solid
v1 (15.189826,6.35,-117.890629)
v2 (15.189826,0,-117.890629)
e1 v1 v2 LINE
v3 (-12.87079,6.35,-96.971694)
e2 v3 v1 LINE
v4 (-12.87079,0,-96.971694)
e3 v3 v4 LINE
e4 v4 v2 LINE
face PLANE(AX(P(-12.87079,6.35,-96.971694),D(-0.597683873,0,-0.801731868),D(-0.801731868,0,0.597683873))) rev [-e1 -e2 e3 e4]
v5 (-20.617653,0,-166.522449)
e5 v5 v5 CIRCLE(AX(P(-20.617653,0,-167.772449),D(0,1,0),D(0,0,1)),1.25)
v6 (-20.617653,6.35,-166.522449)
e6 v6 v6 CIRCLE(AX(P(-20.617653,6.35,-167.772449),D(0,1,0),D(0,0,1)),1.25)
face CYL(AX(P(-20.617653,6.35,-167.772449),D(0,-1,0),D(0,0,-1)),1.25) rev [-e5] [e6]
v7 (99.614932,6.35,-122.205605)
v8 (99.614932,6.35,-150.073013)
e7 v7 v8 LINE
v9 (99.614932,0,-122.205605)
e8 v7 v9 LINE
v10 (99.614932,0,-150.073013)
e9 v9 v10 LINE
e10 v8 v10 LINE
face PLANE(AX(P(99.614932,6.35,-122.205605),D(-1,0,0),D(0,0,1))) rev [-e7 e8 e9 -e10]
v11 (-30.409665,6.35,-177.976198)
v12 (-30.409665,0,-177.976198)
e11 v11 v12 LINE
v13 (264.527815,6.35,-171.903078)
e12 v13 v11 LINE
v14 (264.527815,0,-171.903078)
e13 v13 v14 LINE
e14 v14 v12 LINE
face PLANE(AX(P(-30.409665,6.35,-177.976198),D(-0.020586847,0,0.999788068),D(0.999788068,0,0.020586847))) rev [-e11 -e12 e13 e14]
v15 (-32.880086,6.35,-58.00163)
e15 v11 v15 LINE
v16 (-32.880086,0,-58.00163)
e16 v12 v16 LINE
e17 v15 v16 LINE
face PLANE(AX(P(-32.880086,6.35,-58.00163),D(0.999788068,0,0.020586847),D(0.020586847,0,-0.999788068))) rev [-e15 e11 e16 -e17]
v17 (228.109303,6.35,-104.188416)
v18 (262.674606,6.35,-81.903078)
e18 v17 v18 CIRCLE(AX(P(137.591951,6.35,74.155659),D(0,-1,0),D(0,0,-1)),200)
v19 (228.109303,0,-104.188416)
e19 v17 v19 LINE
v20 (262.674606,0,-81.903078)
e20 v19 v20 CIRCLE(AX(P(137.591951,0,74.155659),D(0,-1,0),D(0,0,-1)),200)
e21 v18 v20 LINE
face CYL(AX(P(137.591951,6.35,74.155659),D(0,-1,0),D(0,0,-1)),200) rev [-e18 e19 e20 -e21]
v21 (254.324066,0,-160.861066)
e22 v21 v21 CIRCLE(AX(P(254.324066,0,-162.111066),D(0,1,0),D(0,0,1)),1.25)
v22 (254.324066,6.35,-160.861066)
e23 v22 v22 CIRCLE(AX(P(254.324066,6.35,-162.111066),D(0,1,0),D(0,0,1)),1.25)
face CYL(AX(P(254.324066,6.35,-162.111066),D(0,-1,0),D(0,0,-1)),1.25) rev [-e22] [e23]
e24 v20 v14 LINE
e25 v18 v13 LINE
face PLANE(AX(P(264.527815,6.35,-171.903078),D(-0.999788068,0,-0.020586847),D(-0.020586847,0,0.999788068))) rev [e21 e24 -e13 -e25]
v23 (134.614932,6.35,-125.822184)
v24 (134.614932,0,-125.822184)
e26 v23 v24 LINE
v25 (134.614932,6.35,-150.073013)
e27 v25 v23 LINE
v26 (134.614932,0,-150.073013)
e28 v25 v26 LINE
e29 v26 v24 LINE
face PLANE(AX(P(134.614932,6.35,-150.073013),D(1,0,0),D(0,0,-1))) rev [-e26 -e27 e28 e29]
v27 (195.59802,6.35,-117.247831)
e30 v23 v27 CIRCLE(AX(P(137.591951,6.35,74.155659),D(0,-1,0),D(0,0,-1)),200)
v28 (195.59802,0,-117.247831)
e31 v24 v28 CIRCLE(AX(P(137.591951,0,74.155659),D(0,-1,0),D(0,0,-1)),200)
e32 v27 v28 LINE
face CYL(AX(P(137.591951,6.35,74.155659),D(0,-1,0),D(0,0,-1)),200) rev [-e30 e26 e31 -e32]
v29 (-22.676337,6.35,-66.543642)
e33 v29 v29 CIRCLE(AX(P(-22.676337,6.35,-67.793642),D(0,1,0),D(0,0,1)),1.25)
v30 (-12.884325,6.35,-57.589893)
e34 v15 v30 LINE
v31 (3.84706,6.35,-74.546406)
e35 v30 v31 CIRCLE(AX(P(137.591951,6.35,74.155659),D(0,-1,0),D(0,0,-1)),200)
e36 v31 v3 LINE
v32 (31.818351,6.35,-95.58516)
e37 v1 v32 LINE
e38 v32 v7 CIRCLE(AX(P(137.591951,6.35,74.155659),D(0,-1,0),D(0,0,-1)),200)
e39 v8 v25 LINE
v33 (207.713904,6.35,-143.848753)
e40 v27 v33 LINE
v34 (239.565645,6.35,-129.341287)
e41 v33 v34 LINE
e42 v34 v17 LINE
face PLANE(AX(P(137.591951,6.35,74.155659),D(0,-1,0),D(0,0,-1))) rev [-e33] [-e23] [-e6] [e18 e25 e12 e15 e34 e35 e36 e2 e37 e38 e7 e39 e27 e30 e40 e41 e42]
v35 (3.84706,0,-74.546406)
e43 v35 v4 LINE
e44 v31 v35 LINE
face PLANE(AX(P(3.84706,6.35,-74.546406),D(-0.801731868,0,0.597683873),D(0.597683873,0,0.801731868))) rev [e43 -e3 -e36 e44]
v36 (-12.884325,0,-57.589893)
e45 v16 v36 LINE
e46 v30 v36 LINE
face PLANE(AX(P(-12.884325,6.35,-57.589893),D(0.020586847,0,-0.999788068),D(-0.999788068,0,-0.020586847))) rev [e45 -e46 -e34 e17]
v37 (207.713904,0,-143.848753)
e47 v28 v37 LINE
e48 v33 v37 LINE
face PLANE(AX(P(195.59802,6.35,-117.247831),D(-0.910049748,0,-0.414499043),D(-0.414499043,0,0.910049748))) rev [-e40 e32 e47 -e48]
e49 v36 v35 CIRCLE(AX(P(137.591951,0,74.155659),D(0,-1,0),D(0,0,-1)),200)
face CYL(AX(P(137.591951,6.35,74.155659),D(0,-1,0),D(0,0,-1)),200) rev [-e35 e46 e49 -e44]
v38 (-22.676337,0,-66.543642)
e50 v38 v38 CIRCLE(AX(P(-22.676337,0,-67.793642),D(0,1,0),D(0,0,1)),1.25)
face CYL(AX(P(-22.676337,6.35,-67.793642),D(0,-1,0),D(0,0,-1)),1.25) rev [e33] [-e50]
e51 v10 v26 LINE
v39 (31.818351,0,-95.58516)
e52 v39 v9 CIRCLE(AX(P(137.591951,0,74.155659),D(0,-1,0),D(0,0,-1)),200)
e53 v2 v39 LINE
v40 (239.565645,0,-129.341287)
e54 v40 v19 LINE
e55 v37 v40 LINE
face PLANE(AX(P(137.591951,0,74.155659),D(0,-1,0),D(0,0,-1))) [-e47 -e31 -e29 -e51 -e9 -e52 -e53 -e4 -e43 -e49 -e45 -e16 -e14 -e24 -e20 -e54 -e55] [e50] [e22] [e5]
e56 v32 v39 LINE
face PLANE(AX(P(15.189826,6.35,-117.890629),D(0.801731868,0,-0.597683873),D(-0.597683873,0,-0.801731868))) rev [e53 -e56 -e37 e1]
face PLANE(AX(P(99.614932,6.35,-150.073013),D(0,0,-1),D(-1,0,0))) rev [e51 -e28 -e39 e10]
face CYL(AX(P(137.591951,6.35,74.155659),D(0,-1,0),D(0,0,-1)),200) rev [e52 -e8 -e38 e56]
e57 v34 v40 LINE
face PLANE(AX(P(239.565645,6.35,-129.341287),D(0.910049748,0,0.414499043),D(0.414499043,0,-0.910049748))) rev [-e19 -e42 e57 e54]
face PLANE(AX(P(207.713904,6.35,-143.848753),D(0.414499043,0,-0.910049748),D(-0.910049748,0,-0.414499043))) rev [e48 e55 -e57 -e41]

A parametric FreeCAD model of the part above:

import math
import FreeCAD as App
import Part
import Sketcher

doc = App.newDocument("Part")
body = doc.addObject("PartDesign::Body", "Body")

# Sketch on XZ plane
sketch1 = body.newObject("Sketcher::SketchObject", "Sketch")
sketch1.AttachmentSupport = (doc.getObject("XZ_Plane"), [""])
sketch1.MapMode = "FlatFace"
sketch1.addGeometry([
    Part.LineSegment(App.Vector(-32.880086, -58.00163, 0), App.Vector(-12.884325, -57.589893, 0)),  # 0
    Part.ArcOfCircle(Part.Circle(App.Vector(137.591951, 74.155659, 0), App.Vector(0, 0, 1), 200), math.radians(-138.797084), math.radians(-131.968694)),  # 1
    Part.LineSegment(App.Vector(3.84706, -74.546406, 0), App.Vector(-12.87079, -96.971694, 0)),  # 2
    Part.LineSegment(App.Vector(-12.87079, -96.971694, 0), App.Vector(15.189826, -117.890629, 0)),  # 3
    Part.LineSegment(App.Vector(15.189826, -117.890629, 0), App.Vector(31.818351, -95.58516, 0)),  # 4
    Part.ArcOfCircle(Part.Circle(App.Vector(137.591951, 74.155659, 0), App.Vector(0, 0, 1), 200), math.radians(-121.929002), math.radians(-100.946079)),  # 5
    Part.LineSegment(App.Vector(99.614932, -122.205605, 0), App.Vector(99.614932, -150.073013, 0)),  # 6
    Part.LineSegment(App.Vector(99.614932, -150.073013, 0), App.Vector(134.614932, -150.073013, 0)),  # 7
    Part.LineSegment(App.Vector(134.614932, -150.073013, 0), App.Vector(134.614932, -125.822184, 0)),  # 8
    Part.ArcOfCircle(Part.Circle(App.Vector(137.591951, 74.155659, 0), App.Vector(0, 0, 1), 200), math.radians(-90.852885), math.radians(-73.140227)),  # 9
    Part.LineSegment(App.Vector(195.59802, -117.247831, 0), App.Vector(207.713904, -143.848753, 0)),  # 10
    Part.LineSegment(App.Vector(207.713904, -143.848753, 0), App.Vector(239.565645, -129.341287, 0)),  # 11
    Part.LineSegment(App.Vector(239.565645, -129.341287, 0), App.Vector(228.109303, -104.188416, 0)),  # 12
    Part.ArcOfCircle(Part.Circle(App.Vector(137.591951, 74.155659, 0), App.Vector(0, 0, 1), 200), math.radians(-63.090231), math.radians(-51.287473)),  # 13
    Part.LineSegment(App.Vector(262.674606, -81.903078, 0), App.Vector(264.527815, -171.903078, 0)),  # 14
    Part.LineSegment(App.Vector(264.527815, -171.903078, 0), App.Vector(-30.409665, -177.976198, 0)),  # 15
    Part.LineSegment(App.Vector(-30.409665, -177.976198, 0), App.Vector(-32.880086, -58.00163, 0)),  # 16
    Part.Circle(App.Vector(-22.676337, -67.793642, 0), App.Vector(0, 0, 1), 1.25),  # 17
    Part.Circle(App.Vector(254.324066, -162.111066, 0), App.Vector(0, 0, 1), 1.25),  # 18
    Part.Circle(App.Vector(-20.617653, -167.772449, 0), App.Vector(0, 0, 1), 1.25),  # 19
], False)
sketch1.addConstraint([
    Sketcher.Constraint("Coincident", 0, 2, 1, 1),
    Sketcher.Constraint("Coincident", 1, 2, 2, 1),
    Sketcher.Constraint("Coincident", 2, 2, 3, 1),
    Sketcher.Constraint("Coincident", 3, 2, 4, 1),
    Sketcher.Constraint("Coincident", 4, 2, 5, 1),
    Sketcher.Constraint("Coincident", 5, 2, 6, 1),
    Sketcher.Constraint("Coincident", 6, 2, 7, 1),
    Sketcher.Constraint("Coincident", 7, 2, 8, 1),
    Sketcher.Constraint("Coincident", 8, 2, 9, 1),
    Sketcher.Constraint("Coincident", 9, 2, 10, 1),
    Sketcher.Constraint("Coincident", 10, 2, 11, 1),
    Sketcher.Constraint("Coincident", 11, 2, 12, 1),
    Sketcher.Constraint("Coincident", 12, 2, 13, 1),
    Sketcher.Constraint("Coincident", 13, 2, 14, 1),
    Sketcher.Constraint("Coincident", 14, 2, 15, 1),
    Sketcher.Constraint("Coincident", 15, 2, 16, 1),
    Sketcher.Constraint("Coincident", 16, 2, 0, 1),
    Sketcher.Constraint("Vertical", 6),
    Sketcher.Constraint("Horizontal", 7),
    Sketcher.Constraint("Vertical", 8),
    Sketcher.Constraint("Coincident", 5, 3, 1, 3),
    Sketcher.Constraint("Coincident", 9, 3, 1, 3),
    Sketcher.Constraint("Coincident", 13, 3, 1, 3),
    Sketcher.Constraint("Equal", 1, 5),
    Sketcher.Constraint("Equal", 5, 9),
    Sketcher.Constraint("Equal", 9, 13),
    Sketcher.Constraint("Equal", 17, 18),
    Sketcher.Constraint("Equal", 18, 19),
    Sketcher.Constraint("Perpendicular", 2, 3),
    Sketcher.Constraint("Perpendicular", 3, 4),
    Sketcher.Constraint("Perpendicular", 10, 11),
    Sketcher.Constraint("Perpendicular", 11, 12),
    Sketcher.Constraint("Perpendicular", 0, 14),
    Sketcher.Constraint("Perpendicular", 14, 15),
    Sketcher.Constraint("Perpendicular", 15, 16),
    Sketcher.Constraint("Equal", 3, 11),
    Sketcher.Constraint("Radius", 1, 200.0),
    Sketcher.Constraint("Diameter", 17, 2.5),
    Sketcher.Constraint("DistanceX", 7, 1, 7, 2, 35.0),
    Sketcher.Constraint("Distance", 0, 20.0),
    Sketcher.Constraint("Distance", 3, 35.0),
    Sketcher.Constraint("Distance", 15, 295.0),
    Sketcher.Constraint("Distance", 16, 120.0),
    Sketcher.Constraint("DistanceY", 8, 1, 8, 2, 24.25083),
    Sketcher.Constraint("DistanceY", 15, 2, -1, 1, 177.976198),
    Sketcher.Constraint("DistanceY", 17, 3, 1, 3, 141.949301),
    Sketcher.Constraint("DistanceY", 2, 2, 0, 2, 39.381801),
    Sketcher.Constraint("DistanceY", 5, 2, 1, 2, 47.659199),
    Sketcher.Constraint("DistanceX", 10, 2, 12, 2, 20.3954),
    Sketcher.Constraint("DistanceY", 6, 2, 6, 1, 27.867408),
    Sketcher.Constraint("DistanceX", -1, 1, 1, 3, 137.591951),
    Sketcher.Constraint("DistanceY", -1, 1, 1, 3, 74.155659),
    Sketcher.Constraint("DistanceY", 19, 3, -1, 1, 167.772449),
    Sketcher.Constraint("DistanceX", 2, 2, -1, 1, 12.87079),
    Sketcher.Constraint("DistanceY", 3, 2, -1, 1, 117.890629),
    Sketcher.Constraint("DistanceX", -1, 1, 9, 2, 195.59802),
    Sketcher.Constraint("DistanceX", 17, 3, 1, 3, 160.268288),
    Sketcher.Constraint("DistanceX", 19, 3, 18, 3, 274.941719),
    Sketcher.Constraint("DistanceX", 19, 3, 3, 2, 35.807478),
    Sketcher.Constraint("DistanceY", 10, 2, 9, 2, 26.600922),
    Sketcher.Constraint("DistanceY", 18, 3, 11, 2, 32.769779),
])
pad1 = body.newObject("PartDesign::Pad", "Pad")
pad1.Profile = sketch1
pad1.Length = 6.35
pad1.Reversed = True

doc.recompute()
